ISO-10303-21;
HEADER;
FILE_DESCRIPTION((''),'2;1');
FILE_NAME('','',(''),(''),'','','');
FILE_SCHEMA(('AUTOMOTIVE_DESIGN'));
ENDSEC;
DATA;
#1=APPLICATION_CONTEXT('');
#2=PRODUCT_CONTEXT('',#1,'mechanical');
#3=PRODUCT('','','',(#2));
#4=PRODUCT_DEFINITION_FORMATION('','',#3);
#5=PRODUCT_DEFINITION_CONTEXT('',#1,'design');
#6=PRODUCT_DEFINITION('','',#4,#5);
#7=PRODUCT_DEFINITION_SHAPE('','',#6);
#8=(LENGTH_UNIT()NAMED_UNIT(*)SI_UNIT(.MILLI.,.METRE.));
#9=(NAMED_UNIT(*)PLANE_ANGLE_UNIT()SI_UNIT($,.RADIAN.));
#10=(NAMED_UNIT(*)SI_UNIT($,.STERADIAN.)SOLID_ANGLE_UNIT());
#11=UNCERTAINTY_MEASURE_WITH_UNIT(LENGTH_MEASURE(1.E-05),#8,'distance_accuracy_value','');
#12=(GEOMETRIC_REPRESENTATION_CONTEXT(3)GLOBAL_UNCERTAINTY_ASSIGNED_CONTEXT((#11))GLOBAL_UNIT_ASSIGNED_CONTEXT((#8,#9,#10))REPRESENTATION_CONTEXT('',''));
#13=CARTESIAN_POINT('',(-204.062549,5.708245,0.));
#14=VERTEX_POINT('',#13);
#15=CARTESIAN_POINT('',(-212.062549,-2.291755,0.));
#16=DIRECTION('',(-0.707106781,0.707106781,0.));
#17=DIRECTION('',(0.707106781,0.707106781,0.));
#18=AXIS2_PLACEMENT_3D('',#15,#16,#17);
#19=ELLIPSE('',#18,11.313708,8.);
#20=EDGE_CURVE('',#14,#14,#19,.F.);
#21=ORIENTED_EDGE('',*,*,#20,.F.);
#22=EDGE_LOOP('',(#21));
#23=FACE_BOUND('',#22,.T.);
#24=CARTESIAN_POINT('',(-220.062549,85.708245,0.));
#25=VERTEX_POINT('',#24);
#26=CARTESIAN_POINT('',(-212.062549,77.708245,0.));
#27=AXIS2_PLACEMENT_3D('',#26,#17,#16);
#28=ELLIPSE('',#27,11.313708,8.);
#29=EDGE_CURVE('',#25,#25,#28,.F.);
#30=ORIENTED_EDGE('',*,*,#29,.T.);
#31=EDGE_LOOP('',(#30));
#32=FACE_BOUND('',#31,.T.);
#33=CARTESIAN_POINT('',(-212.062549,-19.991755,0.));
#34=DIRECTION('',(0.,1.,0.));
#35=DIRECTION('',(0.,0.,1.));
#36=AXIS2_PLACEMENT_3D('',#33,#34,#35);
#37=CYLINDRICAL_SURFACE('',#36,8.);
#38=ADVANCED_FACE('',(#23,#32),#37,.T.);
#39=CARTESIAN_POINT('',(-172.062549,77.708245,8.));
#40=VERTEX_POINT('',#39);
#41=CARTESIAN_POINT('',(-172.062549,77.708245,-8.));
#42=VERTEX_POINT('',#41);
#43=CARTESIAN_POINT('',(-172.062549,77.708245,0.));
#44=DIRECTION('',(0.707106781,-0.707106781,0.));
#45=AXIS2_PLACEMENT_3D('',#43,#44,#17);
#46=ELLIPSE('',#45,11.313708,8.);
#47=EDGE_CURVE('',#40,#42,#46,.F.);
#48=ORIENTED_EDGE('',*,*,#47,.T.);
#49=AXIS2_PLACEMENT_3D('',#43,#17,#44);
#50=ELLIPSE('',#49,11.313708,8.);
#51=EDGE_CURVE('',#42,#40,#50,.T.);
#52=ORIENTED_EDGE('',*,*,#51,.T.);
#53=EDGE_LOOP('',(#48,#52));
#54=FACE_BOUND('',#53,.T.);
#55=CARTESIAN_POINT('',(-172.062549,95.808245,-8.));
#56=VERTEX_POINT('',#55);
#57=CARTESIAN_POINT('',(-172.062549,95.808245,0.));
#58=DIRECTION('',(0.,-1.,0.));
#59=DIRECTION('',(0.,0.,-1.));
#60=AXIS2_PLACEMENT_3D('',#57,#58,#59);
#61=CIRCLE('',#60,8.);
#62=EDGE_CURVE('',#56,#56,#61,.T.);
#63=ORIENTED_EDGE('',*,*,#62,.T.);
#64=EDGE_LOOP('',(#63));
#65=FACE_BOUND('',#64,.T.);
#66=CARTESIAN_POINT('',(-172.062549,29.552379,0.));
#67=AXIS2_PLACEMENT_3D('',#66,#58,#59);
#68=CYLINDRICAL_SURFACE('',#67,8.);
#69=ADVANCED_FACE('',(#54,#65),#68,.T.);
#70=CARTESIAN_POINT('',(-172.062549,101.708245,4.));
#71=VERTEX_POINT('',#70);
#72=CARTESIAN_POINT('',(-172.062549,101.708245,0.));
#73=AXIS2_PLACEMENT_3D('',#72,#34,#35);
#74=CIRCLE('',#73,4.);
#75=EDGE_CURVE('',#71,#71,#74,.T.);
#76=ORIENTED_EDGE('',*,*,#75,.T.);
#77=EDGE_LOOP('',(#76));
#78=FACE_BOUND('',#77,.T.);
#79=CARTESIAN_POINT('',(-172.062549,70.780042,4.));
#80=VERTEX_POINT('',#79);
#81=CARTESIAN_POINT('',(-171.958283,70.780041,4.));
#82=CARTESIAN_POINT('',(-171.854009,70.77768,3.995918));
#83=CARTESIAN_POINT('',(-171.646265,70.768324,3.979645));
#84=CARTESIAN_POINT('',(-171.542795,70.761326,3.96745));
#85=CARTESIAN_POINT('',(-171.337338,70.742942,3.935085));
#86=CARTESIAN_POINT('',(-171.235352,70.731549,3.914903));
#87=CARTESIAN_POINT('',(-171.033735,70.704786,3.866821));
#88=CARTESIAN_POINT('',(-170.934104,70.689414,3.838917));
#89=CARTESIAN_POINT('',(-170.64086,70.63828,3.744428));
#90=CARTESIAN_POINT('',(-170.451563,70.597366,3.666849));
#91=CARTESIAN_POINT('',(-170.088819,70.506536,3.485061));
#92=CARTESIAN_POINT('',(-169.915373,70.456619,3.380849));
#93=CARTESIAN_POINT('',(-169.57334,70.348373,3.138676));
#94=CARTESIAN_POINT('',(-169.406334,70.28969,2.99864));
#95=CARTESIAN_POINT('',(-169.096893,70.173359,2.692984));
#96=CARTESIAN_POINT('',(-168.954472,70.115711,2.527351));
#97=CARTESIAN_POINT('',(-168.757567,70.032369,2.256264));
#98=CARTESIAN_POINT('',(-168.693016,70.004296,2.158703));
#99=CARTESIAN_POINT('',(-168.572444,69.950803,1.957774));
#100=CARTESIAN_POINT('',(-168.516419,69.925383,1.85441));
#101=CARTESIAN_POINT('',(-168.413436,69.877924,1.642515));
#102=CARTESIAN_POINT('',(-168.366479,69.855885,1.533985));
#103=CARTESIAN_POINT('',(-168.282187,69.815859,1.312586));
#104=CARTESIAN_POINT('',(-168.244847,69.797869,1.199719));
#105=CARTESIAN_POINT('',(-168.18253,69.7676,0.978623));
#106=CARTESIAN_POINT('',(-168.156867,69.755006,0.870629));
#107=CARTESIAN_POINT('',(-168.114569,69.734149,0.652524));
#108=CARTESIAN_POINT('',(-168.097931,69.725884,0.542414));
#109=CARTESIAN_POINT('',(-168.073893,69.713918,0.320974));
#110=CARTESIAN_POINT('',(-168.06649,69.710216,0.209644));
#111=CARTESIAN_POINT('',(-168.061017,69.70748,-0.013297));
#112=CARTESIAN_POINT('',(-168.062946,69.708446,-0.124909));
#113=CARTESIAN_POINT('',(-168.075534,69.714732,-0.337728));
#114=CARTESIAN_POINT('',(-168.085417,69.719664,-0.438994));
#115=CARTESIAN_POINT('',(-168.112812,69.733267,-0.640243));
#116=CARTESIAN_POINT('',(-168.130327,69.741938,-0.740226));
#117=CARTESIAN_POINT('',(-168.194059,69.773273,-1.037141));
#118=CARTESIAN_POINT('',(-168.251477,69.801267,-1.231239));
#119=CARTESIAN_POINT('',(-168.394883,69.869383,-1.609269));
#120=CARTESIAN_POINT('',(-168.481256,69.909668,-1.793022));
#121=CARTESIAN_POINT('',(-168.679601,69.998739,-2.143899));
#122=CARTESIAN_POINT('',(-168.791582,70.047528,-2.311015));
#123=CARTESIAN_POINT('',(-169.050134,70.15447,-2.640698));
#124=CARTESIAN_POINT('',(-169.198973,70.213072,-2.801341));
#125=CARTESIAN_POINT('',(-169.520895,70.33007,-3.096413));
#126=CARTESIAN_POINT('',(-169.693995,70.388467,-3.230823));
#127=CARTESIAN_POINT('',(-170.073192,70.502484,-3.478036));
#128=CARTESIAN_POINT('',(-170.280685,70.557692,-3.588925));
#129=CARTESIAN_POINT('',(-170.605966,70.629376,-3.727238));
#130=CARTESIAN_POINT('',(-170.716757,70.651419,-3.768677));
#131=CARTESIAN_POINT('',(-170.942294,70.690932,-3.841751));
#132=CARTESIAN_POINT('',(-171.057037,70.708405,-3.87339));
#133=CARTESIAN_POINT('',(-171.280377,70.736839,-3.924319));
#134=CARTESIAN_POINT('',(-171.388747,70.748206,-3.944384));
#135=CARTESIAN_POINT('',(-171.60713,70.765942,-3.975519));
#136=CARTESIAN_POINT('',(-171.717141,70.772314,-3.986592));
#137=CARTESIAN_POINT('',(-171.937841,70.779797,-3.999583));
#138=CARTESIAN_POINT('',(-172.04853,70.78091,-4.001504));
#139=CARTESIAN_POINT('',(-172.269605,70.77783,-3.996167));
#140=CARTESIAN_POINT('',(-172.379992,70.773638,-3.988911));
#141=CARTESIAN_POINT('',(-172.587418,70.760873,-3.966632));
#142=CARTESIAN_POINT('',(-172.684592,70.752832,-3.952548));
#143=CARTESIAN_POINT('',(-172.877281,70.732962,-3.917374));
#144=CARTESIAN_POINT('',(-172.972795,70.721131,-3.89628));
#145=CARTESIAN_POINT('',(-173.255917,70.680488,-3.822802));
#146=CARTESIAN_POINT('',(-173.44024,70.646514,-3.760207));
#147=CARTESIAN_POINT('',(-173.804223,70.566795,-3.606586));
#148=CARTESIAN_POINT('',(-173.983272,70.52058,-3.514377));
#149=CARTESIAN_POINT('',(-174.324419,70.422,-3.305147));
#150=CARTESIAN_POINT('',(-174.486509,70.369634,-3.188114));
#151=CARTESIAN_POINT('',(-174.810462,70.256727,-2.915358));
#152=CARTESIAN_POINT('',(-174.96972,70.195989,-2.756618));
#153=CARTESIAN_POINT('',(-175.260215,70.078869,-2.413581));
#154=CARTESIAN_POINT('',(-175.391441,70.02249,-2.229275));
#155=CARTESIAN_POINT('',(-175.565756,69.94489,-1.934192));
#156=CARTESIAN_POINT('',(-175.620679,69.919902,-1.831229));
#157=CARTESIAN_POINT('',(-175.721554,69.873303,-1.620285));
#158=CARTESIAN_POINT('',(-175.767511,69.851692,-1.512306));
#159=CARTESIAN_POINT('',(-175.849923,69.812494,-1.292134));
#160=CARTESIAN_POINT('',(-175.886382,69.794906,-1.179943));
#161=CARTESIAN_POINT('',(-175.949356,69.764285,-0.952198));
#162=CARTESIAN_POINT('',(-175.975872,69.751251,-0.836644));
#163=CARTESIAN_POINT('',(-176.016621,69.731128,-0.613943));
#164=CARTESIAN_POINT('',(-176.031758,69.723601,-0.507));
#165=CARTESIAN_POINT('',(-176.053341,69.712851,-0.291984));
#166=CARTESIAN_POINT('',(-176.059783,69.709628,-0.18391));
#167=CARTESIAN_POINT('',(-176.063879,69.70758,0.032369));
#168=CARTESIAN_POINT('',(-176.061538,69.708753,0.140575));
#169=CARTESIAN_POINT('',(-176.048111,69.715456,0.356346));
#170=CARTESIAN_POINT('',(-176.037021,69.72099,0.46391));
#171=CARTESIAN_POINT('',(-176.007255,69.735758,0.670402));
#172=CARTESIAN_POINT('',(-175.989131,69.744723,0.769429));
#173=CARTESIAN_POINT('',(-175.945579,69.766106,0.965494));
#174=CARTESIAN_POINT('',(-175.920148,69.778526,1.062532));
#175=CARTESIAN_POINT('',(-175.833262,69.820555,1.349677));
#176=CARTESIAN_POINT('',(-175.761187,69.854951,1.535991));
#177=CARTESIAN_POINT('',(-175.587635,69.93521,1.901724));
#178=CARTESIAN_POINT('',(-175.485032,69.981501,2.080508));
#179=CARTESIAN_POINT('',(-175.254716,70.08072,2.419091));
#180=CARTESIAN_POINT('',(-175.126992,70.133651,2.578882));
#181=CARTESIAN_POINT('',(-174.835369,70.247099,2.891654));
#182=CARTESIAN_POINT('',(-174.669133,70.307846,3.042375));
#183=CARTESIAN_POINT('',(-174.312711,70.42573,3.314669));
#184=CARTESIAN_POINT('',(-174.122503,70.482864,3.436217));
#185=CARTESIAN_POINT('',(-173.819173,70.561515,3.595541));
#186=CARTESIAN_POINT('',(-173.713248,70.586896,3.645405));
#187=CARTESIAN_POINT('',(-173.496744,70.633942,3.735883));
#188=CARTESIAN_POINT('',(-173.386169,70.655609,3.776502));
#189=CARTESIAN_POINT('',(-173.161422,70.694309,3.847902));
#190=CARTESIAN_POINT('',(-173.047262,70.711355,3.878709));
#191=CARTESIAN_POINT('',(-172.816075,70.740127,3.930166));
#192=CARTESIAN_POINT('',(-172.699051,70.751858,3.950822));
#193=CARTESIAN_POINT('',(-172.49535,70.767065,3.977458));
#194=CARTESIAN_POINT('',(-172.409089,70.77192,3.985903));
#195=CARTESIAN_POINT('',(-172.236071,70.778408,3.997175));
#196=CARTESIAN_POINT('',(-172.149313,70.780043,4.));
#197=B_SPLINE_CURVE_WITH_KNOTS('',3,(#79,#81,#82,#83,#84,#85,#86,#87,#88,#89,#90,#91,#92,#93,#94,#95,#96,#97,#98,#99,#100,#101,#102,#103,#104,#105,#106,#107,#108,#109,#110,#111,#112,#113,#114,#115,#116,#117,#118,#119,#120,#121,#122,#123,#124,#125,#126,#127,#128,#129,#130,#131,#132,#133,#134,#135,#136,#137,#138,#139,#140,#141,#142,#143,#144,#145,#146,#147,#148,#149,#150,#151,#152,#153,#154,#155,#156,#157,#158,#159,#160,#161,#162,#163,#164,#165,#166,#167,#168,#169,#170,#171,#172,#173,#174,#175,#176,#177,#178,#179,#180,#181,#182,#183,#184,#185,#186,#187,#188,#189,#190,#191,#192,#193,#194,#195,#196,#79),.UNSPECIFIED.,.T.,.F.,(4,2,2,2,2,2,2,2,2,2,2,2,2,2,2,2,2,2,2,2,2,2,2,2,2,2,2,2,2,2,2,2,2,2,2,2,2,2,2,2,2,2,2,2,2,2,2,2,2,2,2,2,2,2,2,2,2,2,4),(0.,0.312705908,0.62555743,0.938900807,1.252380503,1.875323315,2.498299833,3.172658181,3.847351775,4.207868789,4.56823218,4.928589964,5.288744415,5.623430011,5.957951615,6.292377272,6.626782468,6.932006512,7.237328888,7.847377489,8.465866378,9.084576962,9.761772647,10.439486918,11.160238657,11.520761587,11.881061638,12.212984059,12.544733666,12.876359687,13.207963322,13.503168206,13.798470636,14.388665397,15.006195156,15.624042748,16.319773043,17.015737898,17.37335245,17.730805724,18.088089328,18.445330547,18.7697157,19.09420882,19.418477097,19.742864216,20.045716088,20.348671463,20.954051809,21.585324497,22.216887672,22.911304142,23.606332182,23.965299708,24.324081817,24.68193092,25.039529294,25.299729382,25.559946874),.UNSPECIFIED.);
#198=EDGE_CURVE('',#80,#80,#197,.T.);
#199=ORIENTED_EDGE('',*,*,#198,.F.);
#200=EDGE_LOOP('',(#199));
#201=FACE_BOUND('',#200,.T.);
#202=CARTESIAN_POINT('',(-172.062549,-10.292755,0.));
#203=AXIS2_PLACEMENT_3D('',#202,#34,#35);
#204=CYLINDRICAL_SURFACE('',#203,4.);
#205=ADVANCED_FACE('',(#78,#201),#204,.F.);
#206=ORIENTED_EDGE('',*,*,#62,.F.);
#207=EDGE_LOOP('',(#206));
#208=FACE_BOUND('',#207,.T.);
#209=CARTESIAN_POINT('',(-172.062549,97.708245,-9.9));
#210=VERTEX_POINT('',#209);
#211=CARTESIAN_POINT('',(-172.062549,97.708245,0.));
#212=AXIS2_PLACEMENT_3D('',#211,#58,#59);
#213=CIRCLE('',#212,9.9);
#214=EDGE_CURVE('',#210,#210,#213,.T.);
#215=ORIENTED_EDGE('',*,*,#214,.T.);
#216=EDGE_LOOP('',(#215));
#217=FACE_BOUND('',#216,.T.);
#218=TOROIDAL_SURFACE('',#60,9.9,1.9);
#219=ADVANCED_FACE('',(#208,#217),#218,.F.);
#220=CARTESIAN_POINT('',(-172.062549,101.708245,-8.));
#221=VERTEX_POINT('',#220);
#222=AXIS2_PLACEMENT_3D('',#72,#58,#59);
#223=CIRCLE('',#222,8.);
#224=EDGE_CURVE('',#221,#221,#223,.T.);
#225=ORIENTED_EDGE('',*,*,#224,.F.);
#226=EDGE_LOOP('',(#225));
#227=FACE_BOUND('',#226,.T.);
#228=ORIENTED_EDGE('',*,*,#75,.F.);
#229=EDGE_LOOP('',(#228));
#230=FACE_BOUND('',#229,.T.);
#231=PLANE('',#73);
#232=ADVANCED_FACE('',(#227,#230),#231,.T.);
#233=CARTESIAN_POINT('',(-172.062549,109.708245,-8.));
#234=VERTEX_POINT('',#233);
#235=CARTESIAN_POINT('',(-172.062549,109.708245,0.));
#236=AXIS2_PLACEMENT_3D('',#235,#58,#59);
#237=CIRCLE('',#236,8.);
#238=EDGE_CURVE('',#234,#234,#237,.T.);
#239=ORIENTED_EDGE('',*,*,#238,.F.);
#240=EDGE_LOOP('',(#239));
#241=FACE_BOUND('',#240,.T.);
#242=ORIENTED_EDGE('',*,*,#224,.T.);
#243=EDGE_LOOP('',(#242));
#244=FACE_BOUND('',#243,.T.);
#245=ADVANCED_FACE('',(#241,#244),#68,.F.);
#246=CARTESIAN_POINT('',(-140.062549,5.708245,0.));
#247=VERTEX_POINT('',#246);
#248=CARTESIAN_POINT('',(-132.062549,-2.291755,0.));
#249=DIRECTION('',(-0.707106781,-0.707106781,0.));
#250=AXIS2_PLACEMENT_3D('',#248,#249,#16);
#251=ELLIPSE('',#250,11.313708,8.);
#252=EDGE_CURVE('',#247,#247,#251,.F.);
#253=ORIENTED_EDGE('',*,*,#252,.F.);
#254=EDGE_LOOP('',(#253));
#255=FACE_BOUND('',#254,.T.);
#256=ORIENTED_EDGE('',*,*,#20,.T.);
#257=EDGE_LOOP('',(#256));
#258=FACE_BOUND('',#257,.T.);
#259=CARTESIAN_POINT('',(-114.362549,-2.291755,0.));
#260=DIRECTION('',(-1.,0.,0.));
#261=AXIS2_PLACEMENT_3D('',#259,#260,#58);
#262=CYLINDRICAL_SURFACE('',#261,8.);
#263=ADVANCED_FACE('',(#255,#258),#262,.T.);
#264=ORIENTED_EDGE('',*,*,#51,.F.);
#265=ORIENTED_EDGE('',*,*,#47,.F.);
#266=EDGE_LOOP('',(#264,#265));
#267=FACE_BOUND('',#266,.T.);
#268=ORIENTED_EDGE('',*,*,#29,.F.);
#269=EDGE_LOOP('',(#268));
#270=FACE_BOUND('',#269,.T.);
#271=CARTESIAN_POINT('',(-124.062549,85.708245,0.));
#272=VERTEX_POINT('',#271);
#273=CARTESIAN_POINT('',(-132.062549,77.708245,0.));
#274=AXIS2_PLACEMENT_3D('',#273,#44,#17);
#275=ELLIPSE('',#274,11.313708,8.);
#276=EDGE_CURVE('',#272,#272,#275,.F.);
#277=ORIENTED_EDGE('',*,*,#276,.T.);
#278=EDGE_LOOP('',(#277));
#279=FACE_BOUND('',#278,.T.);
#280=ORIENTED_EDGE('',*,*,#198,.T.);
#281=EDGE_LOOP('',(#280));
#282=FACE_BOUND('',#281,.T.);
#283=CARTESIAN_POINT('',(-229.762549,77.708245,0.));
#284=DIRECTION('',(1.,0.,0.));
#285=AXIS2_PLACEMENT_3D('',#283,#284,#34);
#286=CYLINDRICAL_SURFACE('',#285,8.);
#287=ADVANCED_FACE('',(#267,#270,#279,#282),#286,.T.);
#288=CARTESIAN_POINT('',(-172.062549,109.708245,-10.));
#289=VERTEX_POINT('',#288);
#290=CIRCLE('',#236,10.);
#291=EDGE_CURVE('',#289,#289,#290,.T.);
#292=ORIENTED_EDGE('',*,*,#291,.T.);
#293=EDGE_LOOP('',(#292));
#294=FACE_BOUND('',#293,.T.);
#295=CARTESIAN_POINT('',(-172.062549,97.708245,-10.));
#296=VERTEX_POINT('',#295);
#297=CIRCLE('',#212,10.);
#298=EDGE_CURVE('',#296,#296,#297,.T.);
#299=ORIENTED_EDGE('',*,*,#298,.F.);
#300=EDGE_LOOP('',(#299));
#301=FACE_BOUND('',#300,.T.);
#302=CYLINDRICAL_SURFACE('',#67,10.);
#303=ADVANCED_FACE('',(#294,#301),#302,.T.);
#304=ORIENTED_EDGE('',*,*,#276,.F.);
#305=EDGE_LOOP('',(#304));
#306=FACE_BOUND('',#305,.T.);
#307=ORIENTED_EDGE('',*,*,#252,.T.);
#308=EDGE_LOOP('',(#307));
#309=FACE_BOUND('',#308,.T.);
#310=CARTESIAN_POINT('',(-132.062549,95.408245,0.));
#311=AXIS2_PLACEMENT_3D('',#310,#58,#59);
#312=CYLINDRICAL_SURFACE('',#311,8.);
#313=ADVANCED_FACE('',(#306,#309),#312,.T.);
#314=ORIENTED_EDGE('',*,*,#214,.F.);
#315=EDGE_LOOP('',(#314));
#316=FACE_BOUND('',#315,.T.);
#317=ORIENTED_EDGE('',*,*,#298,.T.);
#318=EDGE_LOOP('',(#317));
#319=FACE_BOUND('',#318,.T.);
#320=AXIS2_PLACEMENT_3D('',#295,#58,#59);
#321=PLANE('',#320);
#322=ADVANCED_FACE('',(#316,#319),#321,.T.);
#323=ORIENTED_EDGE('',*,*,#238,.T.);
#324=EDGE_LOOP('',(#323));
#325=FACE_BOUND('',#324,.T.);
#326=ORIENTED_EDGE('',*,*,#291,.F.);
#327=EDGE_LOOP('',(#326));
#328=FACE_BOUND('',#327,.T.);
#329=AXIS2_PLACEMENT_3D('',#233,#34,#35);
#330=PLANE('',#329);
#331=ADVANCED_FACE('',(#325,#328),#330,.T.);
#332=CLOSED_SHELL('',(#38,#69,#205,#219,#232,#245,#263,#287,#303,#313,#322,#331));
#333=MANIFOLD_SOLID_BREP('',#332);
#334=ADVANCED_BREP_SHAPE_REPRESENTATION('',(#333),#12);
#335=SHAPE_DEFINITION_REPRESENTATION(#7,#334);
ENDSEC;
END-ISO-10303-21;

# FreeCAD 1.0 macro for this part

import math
import FreeCAD as App
import Part
import Sketcher

V = App.Vector
Q = App.Units.Quantity

doc = App.newDocument("Part")
body = doc.addObject("PartDesign::Body", "Body")

sketch1 = doc.addObject("Sketcher::SketchObject", "Sketch")
body.addObject(sketch1)
sketch1.AttachmentSupport = (doc.YZ_Plane, [""])
sketch1.MapMode = "FlatFace"
sketch1.AttachmentOffset = App.Placement(V(0, 0, -132.062549), App.Rotation())
sketch1.addGeometry(Part.Circle(V(78, 0, 0), V(0, 0, 1), 8), False)
sketch1.addConstraint(Sketcher.Constraint("PointOnObject", 0, 3, -1))
sketch1.addConstraint(Sketcher.Constraint("Diameter", 0, Q("16 mm")))
sketch1.addConstraint(Sketcher.Constraint("DistanceX", -1, 1, 0, 3, Q("77.708245 mm")))

sketch2 = doc.addObject("Sketcher::SketchObject", "Sketch001")
body.addObject(sketch2)
sketch2.AttachmentSupport = (doc.XY_Plane, [""])
sketch2.MapMode = "FlatFace"
sketch2.addGeometry(Part.LineSegment(V(-132, 78, 0), V(-212, 78, 0)), False)
sketch2.addGeometry(Part.LineSegment(V(-212, 78, 0), V(-212, -2, 0)), False)
sketch2.addGeometry(Part.LineSegment(V(-212, -2, 0), V(-132, -2, 0)), False)
sketch2.addGeometry(Part.LineSegment(V(-132, -2, 0), V(-132, 78, 0)), False)
sketch2.addConstraint(Sketcher.Constraint("Coincident", 0, 2, 1, 1))
sketch2.addConstraint(Sketcher.Constraint("Coincident", 1, 2, 2, 1))
sketch2.addConstraint(Sketcher.Constraint("Coincident", 2, 2, 3, 1))
sketch2.addConstraint(Sketcher.Constraint("Coincident", 3, 2, 0, 1))
sketch2.addConstraint(Sketcher.Constraint("Horizontal", 0))
sketch2.addConstraint(Sketcher.Constraint("Vertical", 1))
sketch2.addConstraint(Sketcher.Constraint("Horizontal", 2))
sketch2.addConstraint(Sketcher.Constraint("Vertical", 3))
sketch2.addConstraint(Sketcher.Constraint("Equal", 2, 1))
sketch2.addConstraint(Sketcher.Constraint("DistanceX", 0, 2, 0, 1, Q("80 mm")))
sketch2.addConstraint(Sketcher.Constraint("DistanceX", 0, 2, -1, 1, Q("212.062549 mm")))
sketch2.addConstraint(Sketcher.Constraint("DistanceY", -1, 1, 0, 2, Q("77.708245 mm")))
doc.recompute()

additivepipe = doc.addObject("PartDesign::AdditivePipe", "AdditivePipe")
body.addObject(additivepipe)
additivepipe.Profile = sketch1
additivepipe.Spine = (sketch2, ["Edge1", "Edge2", "Edge3", "Edge4"])
additivepipe.Transition = "Right corner"

sketch3 = doc.addObject("Sketcher::SketchObject", "Sketch002")
body.addObject(sketch3)
sketch3.AttachmentSupport = (doc.YZ_Plane, [""])
sketch3.MapMode = "FlatFace"
sketch3.AttachmentOffset = App.Placement(V(0, 0, -172.062549), App.Rotation())
sketch3.addGeometry(Part.LineSegment(V(101.71, 0, 0), V(77.71, 0, 0)), False)
sketch3.addGeometry(Part.LineSegment(V(77.71, 0, 0), V(77.71, -8, 0)), False)
sketch3.addGeometry(Part.LineSegment(V(77.71, -8, 0), V(95.81, -8, 0)), False)
sketch3.addGeometry(Part.ArcOfCircle(Part.Circle(V(95.81, -9.9, 0), V(0, 0, 1), 1.9), math.radians(0), math.radians(90)), False)
sketch3.addGeometry(Part.LineSegment(V(97.71, -9.9, 0), V(97.71, -10, 0)), False)
sketch3.addGeometry(Part.LineSegment(V(97.71, -10, 0), V(109.71, -10, 0)), False)
sketch3.addGeometry(Part.LineSegment(V(109.71, -10, 0), V(109.71, -8, 0)), False)
sketch3.addGeometry(Part.LineSegment(V(109.71, -8, 0), V(101.71, -8, 0)), False)
sketch3.addGeometry(Part.LineSegment(V(101.71, -8, 0), V(101.71, 0, 0)), False)
sketch3.addConstraint(Sketcher.Constraint("Coincident", 0, 2, 1, 1))
sketch3.addConstraint(Sketcher.Constraint("Coincident", 1, 2, 2, 1))
sketch3.addConstraint(Sketcher.Constraint("Tangent", 2, 2, 3, 2))
sketch3.addConstraint(Sketcher.Constraint("Tangent", 3, 1, 4, 1))
sketch3.addConstraint(Sketcher.Constraint("Coincident", 4, 2, 5, 1))
sketch3.addConstraint(Sketcher.Constraint("Coincident", 5, 2, 6, 1))
sketch3.addConstraint(Sketcher.Constraint("Coincident", 6, 2, 7, 1))
sketch3.addConstraint(Sketcher.Constraint("Coincident", 7, 2, 8, 1))
sketch3.addConstraint(Sketcher.Constraint("Coincident", 8, 2, 0, 1))
sketch3.addConstraint(Sketcher.Constraint("Horizontal", 0))
sketch3.addConstraint(Sketcher.Constraint("Vertical", 1))
sketch3.addConstraint(Sketcher.Constraint("Horizontal", 2))
sketch3.addConstraint(Sketcher.Constraint("Vertical", 4))
sketch3.addConstraint(Sketcher.Constraint("Horizontal", 5))
sketch3.addConstraint(Sketcher.Constraint("Vertical", 6))
sketch3.addConstraint(Sketcher.Constraint("Horizontal", 7))
sketch3.addConstraint(Sketcher.Constraint("Vertical", 8))
sketch3.addConstraint(Sketcher.Constraint("PointOnObject", 0, 2, -1))
sketch3.addConstraint(Sketcher.Constraint("Horizontal", 2, 2, 6, 2))
sketch3.addConstraint(Sketcher.Constraint("Equal", 7, 1))
sketch3.addConstraint(Sketcher.Constraint("Radius", 3, Q("1.9 mm")))
sketch3.addConstraint(Sketcher.Constraint("DistanceX", 0, 2, 0, 1, Q("24 mm")))
sketch3.addConstraint(Sketcher.Constraint("DistanceX", 5, 1, 5, 2, Q("12 mm")))
sketch3.addConstraint(Sketcher.Constraint("DistanceX", 7, 2, 7, 1, Q("8 mm")))
sketch3.addConstraint(Sketcher.Constraint("DistanceY", 6, 1, 6, 2, Q("2 mm")))
sketch3.addConstraint(Sketcher.Constraint("DistanceX", -1, 1, 3, 3, Q("95.808245 mm")))
revolution = doc.addObject("PartDesign::Revolution", "Revolution")
body.addObject(revolution)
revolution.Profile = sketch3
revolution.ReferenceAxis = (sketch3, ["H_Axis"])
revolution.Angle = 360

sketch4 = doc.addObject("Sketcher::SketchObject", "Sketch003")
body.addObject(sketch4)
sketch4.AttachmentSupport = (doc.XZ_Plane, [""])
sketch4.MapMode = "FlatFace"
sketch4.AttachmentOffset = App.Placement(V(0, 0, -101.708245), App.Rotation())
sketch4.addGeometry(Part.Circle(V(-172.1, 0, 0), V(0, 0, 1), 4), False)
sketch4.addConstraint(Sketcher.Constraint("PointOnObject", 0, 3, -1))
sketch4.addConstraint(Sketcher.Constraint("Diameter", 0, Q("8 mm")))
sketch4.addConstraint(Sketcher.Constraint("DistanceX", 0, 3, -1, 1, Q("172.062549 mm")))
pocket1 = doc.addObject("PartDesign::Pocket", "Pocket")
body.addObject(pocket1)
pocket1.Profile = sketch4
pocket1.Type = "UpToFirst"
pocket1.Reversed = True

doc.recompute()
